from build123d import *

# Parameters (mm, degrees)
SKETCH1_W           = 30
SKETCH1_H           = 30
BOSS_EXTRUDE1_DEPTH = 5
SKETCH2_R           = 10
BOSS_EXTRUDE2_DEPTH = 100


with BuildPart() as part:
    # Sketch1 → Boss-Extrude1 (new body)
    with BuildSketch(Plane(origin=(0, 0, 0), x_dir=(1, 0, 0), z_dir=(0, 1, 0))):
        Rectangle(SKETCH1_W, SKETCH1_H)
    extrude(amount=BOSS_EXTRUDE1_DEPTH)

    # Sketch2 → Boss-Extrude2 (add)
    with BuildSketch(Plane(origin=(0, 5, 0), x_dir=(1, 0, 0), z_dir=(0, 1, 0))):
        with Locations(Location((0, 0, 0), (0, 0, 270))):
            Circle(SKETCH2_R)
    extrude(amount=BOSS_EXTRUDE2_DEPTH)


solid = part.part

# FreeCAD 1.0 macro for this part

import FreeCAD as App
import Part
import Sketcher

V = App.Vector


def add_polygon(sketch, points):
    """Adds a closed chain of lines whose ends are joined by coincident constraints."""
    first, n = sketch.GeometryCount, len(points)
    for a, b in zip(points, points[1:] + points[:1]):
        sketch.addGeometry(Part.LineSegment(App.Vector(*a, 0), App.Vector(*b, 0)), False)
    for i in range(n):
        sketch.addConstraint(Sketcher.Constraint("Coincident", first + i, 2, first + (i + 1) % n, 1))

doc = App.newDocument("Part")
params = doc.addObject("Spreadsheet::Sheet", "Params")
for row, (alias, value) in enumerate([
    ("sketch1_width", "30 mm"),
    ("pad1_length", "5 mm"),
    ("sketch2_diameter", "20 mm"),
    ("pad2_length", "100 mm"),
], start=1):
    params.set(f"A{row}", alias)
    params.set(f"B{row}", "=" + value)
    params.setAlias(f"B{row}", alias)

body = doc.addObject("PartDesign::Body", "Body")

sketch1 = body.newObject("Sketcher::SketchObject", "Sketch")
sketch1.AttachmentSupport = (doc.getObject("XZ_Plane"), [""])
sketch1.MapMode = "FlatFace"
add_polygon(sketch1, [(-15, -15), (-15, 15), (15, 15), (15, -15)])
sketch1.addConstraint(Sketcher.Constraint("Vertical", 0))
sketch1.addConstraint(Sketcher.Constraint("Horizontal", 1))
sketch1.addConstraint(Sketcher.Constraint("Vertical", 2))
sketch1.addConstraint(Sketcher.Constraint("Horizontal", 3))
sketch1.addConstraint(Sketcher.Constraint("Symmetric", 0, 2, 2, 2, -1, 1))
sketch1.addConstraint(Sketcher.Constraint("Equal", 3, 0))
sketch1.addConstraint(Sketcher.Constraint("DistanceX", 1, 1, 1, 2, 30.0))
sketch1.setExpression("Constraints[10]", "Params.sketch1_width")
pad1 = body.newObject("PartDesign::Pad", "Pad")
pad1.Profile = sketch1
pad1.setExpression("Length", "Params.pad1_length")
pad1.Reversed = True

sketch2 = body.newObject("Sketcher::SketchObject", "Sketch001")
sketch2.AttachmentSupport = (doc.getObject("XZ_Plane"), [""])
sketch2.MapMode = "FlatFace"
sketch2.AttachmentOffset = App.Placement(V(0, 0, -5), App.Rotation())
sketch2.addGeometry(Part.Circle(V(0, 0, 0), V(0, 0, 1), 10), False)
sketch2.addConstraint(Sketcher.Constraint("Coincident", 0, 3, -1, 1))
sketch2.addConstraint(Sketcher.Constraint("Diameter", 0, 20.0))
sketch2.setExpression("Constraints[1]", "Params.sketch2_diameter")
pad2 = body.newObject("PartDesign::Pad", "Pad001")
pad2.Profile = sketch2
pad2.setExpression("Length", "Params.pad2_length")
pad2.Reversed = True

doc.recompute()
